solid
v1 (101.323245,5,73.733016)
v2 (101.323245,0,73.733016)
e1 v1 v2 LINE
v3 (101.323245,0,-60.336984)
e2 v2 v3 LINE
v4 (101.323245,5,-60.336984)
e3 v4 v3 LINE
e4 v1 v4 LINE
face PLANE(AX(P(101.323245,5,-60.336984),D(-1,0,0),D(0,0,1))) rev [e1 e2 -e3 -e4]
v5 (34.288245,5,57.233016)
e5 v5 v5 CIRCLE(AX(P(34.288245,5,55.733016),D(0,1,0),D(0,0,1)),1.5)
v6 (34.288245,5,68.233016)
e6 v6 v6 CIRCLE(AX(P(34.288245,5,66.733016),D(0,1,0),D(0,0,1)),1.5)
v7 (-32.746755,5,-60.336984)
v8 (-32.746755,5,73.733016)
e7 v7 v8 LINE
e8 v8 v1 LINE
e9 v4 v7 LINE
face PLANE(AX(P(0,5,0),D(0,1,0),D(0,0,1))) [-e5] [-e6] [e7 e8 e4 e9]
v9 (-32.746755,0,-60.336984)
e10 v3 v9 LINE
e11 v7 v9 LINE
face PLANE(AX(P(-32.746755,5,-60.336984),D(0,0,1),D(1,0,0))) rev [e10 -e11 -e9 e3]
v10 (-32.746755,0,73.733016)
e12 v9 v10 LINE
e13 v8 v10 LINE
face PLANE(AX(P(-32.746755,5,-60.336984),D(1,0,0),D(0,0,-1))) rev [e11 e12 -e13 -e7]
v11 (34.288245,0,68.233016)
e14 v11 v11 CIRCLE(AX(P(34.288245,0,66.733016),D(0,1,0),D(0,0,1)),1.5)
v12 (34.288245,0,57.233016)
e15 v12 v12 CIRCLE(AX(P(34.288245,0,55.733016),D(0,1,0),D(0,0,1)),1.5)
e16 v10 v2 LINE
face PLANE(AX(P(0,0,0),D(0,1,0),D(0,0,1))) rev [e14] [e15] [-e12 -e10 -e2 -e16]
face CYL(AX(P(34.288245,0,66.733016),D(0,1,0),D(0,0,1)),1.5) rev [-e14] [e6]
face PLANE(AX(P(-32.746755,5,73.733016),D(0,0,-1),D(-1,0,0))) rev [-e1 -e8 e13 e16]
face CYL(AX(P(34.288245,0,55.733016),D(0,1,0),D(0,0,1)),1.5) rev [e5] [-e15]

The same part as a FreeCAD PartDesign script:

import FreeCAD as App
import Part
import Sketcher


def add_polygon(sketch, points):
    """Adds a closed chain of lines whose ends are joined by coincident constraints."""
    first, n = sketch.GeometryCount, len(points)
    for a, b in zip(points, points[1:] + points[:1]):
        sketch.addGeometry(Part.LineSegment(App.Vector(*a, 0), App.Vector(*b, 0)), False)
    for i in range(n):
        sketch.addConstraint(Sketcher.Constraint("Coincident", first + i, 2, first + (i + 1) % n, 1))

doc = App.newDocument("Part")
body = doc.addObject("PartDesign::Body", "Body")

# Sketch on XZ plane
sketch1 = body.newObject("Sketcher::SketchObject", "Sketch")
sketch1.AttachmentSupport = (doc.getObject("XZ_Plane"), [""])
sketch1.MapMode = "FlatFace"
add_polygon(sketch1, [(-33, -60), (-33, 74), (101, 74), (101, -60)])  # lines 0-3
sketch1.addConstraint([
    Sketcher.Constraint("Vertical", 0),
    Sketcher.Constraint("Horizontal", 1),
    Sketcher.Constraint("Vertical", 2),
    Sketcher.Constraint("Horizontal", 3),
    Sketcher.Constraint("Equal", 3, 0),
    Sketcher.Constraint("DistanceX", 1, 1, 1, 2, 134.07),
    Sketcher.Constraint("DistanceX", 0, 2, -1, 1, 32.746755),
    Sketcher.Constraint("DistanceY", -1, 1, 0, 2, 73.733016),
])
pad1 = body.newObject("PartDesign::Pad", "Pad")
pad1.Profile = sketch1
pad1.Length = 5
pad1.Reversed = True

# Sketch on XZ plane
sketch2 = body.newObject("Sketcher::SketchObject", "Sketch001")
sketch2.AttachmentSupport = (doc.getObject("XZ_Plane"), [""])
sketch2.MapMode = "FlatFace"
sketch2.AttachmentOffset = App.Placement(App.Vector(0, 0, -5), App.Rotation())
sketch2.addGeometry([
    Part.Circle(App.Vector(34.3, 55.7, 0), App.Vector(0, 0, 1), 1.5),
    Part.Circle(App.Vector(34.3, 66.7, 0), App.Vector(0, 0, 1), 1.5),
], False)
sketch2.addConstraint([
    Sketcher.Constraint("Equal", 0, 1),
    Sketcher.Constraint("Vertical", 0, 3, 1, 3),
    Sketcher.Constraint("Diameter", 0, 3.0),
    Sketcher.Constraint("DistanceY", 0, 3, 1, 3, 11.0),
    Sketcher.Constraint("DistanceX", -1, 1, 0, 3, 34.288245),
    Sketcher.Constraint("DistanceY", -1, 1, 0, 3, 55.733016),
])
pocket1 = body.newObject("PartDesign::Pocket", "Pocket")
pocket1.Profile = sketch2
pocket1.Length = 5
pocket1.Reversed = True

doc.recompute()
